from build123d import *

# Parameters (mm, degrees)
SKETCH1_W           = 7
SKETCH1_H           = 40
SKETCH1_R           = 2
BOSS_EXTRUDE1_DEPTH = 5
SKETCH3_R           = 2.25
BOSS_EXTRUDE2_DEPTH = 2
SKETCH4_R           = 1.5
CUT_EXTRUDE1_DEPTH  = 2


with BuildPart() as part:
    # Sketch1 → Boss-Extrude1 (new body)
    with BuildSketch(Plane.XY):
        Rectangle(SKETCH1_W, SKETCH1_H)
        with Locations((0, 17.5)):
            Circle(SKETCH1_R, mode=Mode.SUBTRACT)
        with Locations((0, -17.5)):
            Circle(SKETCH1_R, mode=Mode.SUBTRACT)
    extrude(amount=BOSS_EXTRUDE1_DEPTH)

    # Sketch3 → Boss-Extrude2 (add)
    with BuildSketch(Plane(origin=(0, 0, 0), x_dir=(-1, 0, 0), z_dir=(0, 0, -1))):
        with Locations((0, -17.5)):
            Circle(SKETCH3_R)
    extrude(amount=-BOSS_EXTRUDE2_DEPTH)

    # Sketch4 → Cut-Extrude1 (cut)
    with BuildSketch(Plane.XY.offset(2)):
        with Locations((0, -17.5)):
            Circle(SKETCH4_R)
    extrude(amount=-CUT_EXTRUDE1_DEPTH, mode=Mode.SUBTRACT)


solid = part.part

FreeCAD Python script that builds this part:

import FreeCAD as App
import Part
import Sketcher

V = App.Vector
Q = App.Units.Quantity


def add_polygon(sketch, points):
    """Adds a closed chain of lines whose ends are joined by coincident constraints."""
    first, n = sketch.GeometryCount, len(points)
    for a, b in zip(points, points[1:] + points[:1]):
        sketch.addGeometry(Part.LineSegment(App.Vector(*a, 0), App.Vector(*b, 0)), False)
    for i in range(n):
        sketch.addConstraint(Sketcher.Constraint("Coincident", first + i, 2, first + (i + 1) % n, 1))

doc = App.newDocument("Part")
body = doc.addObject("PartDesign::Body", "Body")

sketch1 = body.newObject("Sketcher::SketchObject", "Sketch")
sketch1.AttachmentSupport = (doc.getObject("XY_Plane"), [""])
sketch1.MapMode = "FlatFace"
add_polygon(sketch1, [(-3.5, 20), (-3.5, -20), (3.5, -20), (3.5, 20)])
sketch1.addGeometry(Part.Circle(V(0, -17.5, 0), V(0, 0, 1), 2), False)
sketch1.addGeometry(Part.Circle(V(0, 17.5, 0), V(0, 0, 1), 2), False)
sketch1.addConstraint([
    Sketcher.Constraint("Vertical", 0),
    Sketcher.Constraint("Horizontal", 1),
    Sketcher.Constraint("Vertical", 2),
    Sketcher.Constraint("Horizontal", 3),
    Sketcher.Constraint("Equal", 4, 5),
    Sketcher.Constraint("Symmetric", 4, 3, 5, 3, -1, 1),
    Sketcher.Constraint("Symmetric", 0, 2, 2, 2, -1, 1),
    Sketcher.Constraint("PointOnObject", 4, 3, -2),
    Sketcher.Constraint("Diameter", 4, Q("4 mm")),
    Sketcher.Constraint("DistanceX", 1, 1, 1, 2, Q("7 mm")),
    Sketcher.Constraint("DistanceY", 0, 2, 0, 1, Q("40 mm")),
    Sketcher.Constraint("DistanceY", 4, 3, 5, 3, Q("35 mm")),
])
pad1 = body.newObject("PartDesign::Pad", "Pad")
pad1.Profile = sketch1
pad1.Length = 5

sketch2 = body.newObject("Sketcher::SketchObject", "Sketch001")
sketch2.AttachmentSupport = (doc.getObject("XY_Plane"), [""])
sketch2.MapMode = "FlatFace"
sketch2.addGeometry(Part.Circle(V(0, -17.5, 0), V(0, 0, 1), 2.2), False)
sketch2.addConstraint([
    Sketcher.Constraint("PointOnObject", 0, 3, -2),
    Sketcher.Constraint("Diameter", 0, Q("4.5 mm")),
    Sketcher.Constraint("DistanceY", 0, 3, -1, 1, Q("17.5 mm")),
])
pad2 = body.newObject("PartDesign::Pad", "Pad001")
pad2.Profile = sketch2
pad2.Length = 2

sketch3 = body.newObject("Sketcher::SketchObject", "Sketch002")
sketch3.AttachmentSupport = (doc.getObject("XY_Plane"), [""])
sketch3.MapMode = "FlatFace"
sketch3.AttachmentOffset = App.Placement(V(0, 0, 2), App.Rotation())
sketch3.addGeometry(Part.Circle(V(0, -17.5, 0), V(0, 0, 1), 1.5), False)
sketch3.addConstraint([
    Sketcher.Constraint("PointOnObject", 0, 3, -2),
    Sketcher.Constraint("Diameter", 0, Q("3 mm")),
    Sketcher.Constraint("DistanceY", 0, 3, -1, 1, Q("17.5 mm")),
])
pocket1 = body.newObject("PartDesign::Pocket", "Pocket")
pocket1.Profile = sketch3
pocket1.Length = 2

doc.recompute()
